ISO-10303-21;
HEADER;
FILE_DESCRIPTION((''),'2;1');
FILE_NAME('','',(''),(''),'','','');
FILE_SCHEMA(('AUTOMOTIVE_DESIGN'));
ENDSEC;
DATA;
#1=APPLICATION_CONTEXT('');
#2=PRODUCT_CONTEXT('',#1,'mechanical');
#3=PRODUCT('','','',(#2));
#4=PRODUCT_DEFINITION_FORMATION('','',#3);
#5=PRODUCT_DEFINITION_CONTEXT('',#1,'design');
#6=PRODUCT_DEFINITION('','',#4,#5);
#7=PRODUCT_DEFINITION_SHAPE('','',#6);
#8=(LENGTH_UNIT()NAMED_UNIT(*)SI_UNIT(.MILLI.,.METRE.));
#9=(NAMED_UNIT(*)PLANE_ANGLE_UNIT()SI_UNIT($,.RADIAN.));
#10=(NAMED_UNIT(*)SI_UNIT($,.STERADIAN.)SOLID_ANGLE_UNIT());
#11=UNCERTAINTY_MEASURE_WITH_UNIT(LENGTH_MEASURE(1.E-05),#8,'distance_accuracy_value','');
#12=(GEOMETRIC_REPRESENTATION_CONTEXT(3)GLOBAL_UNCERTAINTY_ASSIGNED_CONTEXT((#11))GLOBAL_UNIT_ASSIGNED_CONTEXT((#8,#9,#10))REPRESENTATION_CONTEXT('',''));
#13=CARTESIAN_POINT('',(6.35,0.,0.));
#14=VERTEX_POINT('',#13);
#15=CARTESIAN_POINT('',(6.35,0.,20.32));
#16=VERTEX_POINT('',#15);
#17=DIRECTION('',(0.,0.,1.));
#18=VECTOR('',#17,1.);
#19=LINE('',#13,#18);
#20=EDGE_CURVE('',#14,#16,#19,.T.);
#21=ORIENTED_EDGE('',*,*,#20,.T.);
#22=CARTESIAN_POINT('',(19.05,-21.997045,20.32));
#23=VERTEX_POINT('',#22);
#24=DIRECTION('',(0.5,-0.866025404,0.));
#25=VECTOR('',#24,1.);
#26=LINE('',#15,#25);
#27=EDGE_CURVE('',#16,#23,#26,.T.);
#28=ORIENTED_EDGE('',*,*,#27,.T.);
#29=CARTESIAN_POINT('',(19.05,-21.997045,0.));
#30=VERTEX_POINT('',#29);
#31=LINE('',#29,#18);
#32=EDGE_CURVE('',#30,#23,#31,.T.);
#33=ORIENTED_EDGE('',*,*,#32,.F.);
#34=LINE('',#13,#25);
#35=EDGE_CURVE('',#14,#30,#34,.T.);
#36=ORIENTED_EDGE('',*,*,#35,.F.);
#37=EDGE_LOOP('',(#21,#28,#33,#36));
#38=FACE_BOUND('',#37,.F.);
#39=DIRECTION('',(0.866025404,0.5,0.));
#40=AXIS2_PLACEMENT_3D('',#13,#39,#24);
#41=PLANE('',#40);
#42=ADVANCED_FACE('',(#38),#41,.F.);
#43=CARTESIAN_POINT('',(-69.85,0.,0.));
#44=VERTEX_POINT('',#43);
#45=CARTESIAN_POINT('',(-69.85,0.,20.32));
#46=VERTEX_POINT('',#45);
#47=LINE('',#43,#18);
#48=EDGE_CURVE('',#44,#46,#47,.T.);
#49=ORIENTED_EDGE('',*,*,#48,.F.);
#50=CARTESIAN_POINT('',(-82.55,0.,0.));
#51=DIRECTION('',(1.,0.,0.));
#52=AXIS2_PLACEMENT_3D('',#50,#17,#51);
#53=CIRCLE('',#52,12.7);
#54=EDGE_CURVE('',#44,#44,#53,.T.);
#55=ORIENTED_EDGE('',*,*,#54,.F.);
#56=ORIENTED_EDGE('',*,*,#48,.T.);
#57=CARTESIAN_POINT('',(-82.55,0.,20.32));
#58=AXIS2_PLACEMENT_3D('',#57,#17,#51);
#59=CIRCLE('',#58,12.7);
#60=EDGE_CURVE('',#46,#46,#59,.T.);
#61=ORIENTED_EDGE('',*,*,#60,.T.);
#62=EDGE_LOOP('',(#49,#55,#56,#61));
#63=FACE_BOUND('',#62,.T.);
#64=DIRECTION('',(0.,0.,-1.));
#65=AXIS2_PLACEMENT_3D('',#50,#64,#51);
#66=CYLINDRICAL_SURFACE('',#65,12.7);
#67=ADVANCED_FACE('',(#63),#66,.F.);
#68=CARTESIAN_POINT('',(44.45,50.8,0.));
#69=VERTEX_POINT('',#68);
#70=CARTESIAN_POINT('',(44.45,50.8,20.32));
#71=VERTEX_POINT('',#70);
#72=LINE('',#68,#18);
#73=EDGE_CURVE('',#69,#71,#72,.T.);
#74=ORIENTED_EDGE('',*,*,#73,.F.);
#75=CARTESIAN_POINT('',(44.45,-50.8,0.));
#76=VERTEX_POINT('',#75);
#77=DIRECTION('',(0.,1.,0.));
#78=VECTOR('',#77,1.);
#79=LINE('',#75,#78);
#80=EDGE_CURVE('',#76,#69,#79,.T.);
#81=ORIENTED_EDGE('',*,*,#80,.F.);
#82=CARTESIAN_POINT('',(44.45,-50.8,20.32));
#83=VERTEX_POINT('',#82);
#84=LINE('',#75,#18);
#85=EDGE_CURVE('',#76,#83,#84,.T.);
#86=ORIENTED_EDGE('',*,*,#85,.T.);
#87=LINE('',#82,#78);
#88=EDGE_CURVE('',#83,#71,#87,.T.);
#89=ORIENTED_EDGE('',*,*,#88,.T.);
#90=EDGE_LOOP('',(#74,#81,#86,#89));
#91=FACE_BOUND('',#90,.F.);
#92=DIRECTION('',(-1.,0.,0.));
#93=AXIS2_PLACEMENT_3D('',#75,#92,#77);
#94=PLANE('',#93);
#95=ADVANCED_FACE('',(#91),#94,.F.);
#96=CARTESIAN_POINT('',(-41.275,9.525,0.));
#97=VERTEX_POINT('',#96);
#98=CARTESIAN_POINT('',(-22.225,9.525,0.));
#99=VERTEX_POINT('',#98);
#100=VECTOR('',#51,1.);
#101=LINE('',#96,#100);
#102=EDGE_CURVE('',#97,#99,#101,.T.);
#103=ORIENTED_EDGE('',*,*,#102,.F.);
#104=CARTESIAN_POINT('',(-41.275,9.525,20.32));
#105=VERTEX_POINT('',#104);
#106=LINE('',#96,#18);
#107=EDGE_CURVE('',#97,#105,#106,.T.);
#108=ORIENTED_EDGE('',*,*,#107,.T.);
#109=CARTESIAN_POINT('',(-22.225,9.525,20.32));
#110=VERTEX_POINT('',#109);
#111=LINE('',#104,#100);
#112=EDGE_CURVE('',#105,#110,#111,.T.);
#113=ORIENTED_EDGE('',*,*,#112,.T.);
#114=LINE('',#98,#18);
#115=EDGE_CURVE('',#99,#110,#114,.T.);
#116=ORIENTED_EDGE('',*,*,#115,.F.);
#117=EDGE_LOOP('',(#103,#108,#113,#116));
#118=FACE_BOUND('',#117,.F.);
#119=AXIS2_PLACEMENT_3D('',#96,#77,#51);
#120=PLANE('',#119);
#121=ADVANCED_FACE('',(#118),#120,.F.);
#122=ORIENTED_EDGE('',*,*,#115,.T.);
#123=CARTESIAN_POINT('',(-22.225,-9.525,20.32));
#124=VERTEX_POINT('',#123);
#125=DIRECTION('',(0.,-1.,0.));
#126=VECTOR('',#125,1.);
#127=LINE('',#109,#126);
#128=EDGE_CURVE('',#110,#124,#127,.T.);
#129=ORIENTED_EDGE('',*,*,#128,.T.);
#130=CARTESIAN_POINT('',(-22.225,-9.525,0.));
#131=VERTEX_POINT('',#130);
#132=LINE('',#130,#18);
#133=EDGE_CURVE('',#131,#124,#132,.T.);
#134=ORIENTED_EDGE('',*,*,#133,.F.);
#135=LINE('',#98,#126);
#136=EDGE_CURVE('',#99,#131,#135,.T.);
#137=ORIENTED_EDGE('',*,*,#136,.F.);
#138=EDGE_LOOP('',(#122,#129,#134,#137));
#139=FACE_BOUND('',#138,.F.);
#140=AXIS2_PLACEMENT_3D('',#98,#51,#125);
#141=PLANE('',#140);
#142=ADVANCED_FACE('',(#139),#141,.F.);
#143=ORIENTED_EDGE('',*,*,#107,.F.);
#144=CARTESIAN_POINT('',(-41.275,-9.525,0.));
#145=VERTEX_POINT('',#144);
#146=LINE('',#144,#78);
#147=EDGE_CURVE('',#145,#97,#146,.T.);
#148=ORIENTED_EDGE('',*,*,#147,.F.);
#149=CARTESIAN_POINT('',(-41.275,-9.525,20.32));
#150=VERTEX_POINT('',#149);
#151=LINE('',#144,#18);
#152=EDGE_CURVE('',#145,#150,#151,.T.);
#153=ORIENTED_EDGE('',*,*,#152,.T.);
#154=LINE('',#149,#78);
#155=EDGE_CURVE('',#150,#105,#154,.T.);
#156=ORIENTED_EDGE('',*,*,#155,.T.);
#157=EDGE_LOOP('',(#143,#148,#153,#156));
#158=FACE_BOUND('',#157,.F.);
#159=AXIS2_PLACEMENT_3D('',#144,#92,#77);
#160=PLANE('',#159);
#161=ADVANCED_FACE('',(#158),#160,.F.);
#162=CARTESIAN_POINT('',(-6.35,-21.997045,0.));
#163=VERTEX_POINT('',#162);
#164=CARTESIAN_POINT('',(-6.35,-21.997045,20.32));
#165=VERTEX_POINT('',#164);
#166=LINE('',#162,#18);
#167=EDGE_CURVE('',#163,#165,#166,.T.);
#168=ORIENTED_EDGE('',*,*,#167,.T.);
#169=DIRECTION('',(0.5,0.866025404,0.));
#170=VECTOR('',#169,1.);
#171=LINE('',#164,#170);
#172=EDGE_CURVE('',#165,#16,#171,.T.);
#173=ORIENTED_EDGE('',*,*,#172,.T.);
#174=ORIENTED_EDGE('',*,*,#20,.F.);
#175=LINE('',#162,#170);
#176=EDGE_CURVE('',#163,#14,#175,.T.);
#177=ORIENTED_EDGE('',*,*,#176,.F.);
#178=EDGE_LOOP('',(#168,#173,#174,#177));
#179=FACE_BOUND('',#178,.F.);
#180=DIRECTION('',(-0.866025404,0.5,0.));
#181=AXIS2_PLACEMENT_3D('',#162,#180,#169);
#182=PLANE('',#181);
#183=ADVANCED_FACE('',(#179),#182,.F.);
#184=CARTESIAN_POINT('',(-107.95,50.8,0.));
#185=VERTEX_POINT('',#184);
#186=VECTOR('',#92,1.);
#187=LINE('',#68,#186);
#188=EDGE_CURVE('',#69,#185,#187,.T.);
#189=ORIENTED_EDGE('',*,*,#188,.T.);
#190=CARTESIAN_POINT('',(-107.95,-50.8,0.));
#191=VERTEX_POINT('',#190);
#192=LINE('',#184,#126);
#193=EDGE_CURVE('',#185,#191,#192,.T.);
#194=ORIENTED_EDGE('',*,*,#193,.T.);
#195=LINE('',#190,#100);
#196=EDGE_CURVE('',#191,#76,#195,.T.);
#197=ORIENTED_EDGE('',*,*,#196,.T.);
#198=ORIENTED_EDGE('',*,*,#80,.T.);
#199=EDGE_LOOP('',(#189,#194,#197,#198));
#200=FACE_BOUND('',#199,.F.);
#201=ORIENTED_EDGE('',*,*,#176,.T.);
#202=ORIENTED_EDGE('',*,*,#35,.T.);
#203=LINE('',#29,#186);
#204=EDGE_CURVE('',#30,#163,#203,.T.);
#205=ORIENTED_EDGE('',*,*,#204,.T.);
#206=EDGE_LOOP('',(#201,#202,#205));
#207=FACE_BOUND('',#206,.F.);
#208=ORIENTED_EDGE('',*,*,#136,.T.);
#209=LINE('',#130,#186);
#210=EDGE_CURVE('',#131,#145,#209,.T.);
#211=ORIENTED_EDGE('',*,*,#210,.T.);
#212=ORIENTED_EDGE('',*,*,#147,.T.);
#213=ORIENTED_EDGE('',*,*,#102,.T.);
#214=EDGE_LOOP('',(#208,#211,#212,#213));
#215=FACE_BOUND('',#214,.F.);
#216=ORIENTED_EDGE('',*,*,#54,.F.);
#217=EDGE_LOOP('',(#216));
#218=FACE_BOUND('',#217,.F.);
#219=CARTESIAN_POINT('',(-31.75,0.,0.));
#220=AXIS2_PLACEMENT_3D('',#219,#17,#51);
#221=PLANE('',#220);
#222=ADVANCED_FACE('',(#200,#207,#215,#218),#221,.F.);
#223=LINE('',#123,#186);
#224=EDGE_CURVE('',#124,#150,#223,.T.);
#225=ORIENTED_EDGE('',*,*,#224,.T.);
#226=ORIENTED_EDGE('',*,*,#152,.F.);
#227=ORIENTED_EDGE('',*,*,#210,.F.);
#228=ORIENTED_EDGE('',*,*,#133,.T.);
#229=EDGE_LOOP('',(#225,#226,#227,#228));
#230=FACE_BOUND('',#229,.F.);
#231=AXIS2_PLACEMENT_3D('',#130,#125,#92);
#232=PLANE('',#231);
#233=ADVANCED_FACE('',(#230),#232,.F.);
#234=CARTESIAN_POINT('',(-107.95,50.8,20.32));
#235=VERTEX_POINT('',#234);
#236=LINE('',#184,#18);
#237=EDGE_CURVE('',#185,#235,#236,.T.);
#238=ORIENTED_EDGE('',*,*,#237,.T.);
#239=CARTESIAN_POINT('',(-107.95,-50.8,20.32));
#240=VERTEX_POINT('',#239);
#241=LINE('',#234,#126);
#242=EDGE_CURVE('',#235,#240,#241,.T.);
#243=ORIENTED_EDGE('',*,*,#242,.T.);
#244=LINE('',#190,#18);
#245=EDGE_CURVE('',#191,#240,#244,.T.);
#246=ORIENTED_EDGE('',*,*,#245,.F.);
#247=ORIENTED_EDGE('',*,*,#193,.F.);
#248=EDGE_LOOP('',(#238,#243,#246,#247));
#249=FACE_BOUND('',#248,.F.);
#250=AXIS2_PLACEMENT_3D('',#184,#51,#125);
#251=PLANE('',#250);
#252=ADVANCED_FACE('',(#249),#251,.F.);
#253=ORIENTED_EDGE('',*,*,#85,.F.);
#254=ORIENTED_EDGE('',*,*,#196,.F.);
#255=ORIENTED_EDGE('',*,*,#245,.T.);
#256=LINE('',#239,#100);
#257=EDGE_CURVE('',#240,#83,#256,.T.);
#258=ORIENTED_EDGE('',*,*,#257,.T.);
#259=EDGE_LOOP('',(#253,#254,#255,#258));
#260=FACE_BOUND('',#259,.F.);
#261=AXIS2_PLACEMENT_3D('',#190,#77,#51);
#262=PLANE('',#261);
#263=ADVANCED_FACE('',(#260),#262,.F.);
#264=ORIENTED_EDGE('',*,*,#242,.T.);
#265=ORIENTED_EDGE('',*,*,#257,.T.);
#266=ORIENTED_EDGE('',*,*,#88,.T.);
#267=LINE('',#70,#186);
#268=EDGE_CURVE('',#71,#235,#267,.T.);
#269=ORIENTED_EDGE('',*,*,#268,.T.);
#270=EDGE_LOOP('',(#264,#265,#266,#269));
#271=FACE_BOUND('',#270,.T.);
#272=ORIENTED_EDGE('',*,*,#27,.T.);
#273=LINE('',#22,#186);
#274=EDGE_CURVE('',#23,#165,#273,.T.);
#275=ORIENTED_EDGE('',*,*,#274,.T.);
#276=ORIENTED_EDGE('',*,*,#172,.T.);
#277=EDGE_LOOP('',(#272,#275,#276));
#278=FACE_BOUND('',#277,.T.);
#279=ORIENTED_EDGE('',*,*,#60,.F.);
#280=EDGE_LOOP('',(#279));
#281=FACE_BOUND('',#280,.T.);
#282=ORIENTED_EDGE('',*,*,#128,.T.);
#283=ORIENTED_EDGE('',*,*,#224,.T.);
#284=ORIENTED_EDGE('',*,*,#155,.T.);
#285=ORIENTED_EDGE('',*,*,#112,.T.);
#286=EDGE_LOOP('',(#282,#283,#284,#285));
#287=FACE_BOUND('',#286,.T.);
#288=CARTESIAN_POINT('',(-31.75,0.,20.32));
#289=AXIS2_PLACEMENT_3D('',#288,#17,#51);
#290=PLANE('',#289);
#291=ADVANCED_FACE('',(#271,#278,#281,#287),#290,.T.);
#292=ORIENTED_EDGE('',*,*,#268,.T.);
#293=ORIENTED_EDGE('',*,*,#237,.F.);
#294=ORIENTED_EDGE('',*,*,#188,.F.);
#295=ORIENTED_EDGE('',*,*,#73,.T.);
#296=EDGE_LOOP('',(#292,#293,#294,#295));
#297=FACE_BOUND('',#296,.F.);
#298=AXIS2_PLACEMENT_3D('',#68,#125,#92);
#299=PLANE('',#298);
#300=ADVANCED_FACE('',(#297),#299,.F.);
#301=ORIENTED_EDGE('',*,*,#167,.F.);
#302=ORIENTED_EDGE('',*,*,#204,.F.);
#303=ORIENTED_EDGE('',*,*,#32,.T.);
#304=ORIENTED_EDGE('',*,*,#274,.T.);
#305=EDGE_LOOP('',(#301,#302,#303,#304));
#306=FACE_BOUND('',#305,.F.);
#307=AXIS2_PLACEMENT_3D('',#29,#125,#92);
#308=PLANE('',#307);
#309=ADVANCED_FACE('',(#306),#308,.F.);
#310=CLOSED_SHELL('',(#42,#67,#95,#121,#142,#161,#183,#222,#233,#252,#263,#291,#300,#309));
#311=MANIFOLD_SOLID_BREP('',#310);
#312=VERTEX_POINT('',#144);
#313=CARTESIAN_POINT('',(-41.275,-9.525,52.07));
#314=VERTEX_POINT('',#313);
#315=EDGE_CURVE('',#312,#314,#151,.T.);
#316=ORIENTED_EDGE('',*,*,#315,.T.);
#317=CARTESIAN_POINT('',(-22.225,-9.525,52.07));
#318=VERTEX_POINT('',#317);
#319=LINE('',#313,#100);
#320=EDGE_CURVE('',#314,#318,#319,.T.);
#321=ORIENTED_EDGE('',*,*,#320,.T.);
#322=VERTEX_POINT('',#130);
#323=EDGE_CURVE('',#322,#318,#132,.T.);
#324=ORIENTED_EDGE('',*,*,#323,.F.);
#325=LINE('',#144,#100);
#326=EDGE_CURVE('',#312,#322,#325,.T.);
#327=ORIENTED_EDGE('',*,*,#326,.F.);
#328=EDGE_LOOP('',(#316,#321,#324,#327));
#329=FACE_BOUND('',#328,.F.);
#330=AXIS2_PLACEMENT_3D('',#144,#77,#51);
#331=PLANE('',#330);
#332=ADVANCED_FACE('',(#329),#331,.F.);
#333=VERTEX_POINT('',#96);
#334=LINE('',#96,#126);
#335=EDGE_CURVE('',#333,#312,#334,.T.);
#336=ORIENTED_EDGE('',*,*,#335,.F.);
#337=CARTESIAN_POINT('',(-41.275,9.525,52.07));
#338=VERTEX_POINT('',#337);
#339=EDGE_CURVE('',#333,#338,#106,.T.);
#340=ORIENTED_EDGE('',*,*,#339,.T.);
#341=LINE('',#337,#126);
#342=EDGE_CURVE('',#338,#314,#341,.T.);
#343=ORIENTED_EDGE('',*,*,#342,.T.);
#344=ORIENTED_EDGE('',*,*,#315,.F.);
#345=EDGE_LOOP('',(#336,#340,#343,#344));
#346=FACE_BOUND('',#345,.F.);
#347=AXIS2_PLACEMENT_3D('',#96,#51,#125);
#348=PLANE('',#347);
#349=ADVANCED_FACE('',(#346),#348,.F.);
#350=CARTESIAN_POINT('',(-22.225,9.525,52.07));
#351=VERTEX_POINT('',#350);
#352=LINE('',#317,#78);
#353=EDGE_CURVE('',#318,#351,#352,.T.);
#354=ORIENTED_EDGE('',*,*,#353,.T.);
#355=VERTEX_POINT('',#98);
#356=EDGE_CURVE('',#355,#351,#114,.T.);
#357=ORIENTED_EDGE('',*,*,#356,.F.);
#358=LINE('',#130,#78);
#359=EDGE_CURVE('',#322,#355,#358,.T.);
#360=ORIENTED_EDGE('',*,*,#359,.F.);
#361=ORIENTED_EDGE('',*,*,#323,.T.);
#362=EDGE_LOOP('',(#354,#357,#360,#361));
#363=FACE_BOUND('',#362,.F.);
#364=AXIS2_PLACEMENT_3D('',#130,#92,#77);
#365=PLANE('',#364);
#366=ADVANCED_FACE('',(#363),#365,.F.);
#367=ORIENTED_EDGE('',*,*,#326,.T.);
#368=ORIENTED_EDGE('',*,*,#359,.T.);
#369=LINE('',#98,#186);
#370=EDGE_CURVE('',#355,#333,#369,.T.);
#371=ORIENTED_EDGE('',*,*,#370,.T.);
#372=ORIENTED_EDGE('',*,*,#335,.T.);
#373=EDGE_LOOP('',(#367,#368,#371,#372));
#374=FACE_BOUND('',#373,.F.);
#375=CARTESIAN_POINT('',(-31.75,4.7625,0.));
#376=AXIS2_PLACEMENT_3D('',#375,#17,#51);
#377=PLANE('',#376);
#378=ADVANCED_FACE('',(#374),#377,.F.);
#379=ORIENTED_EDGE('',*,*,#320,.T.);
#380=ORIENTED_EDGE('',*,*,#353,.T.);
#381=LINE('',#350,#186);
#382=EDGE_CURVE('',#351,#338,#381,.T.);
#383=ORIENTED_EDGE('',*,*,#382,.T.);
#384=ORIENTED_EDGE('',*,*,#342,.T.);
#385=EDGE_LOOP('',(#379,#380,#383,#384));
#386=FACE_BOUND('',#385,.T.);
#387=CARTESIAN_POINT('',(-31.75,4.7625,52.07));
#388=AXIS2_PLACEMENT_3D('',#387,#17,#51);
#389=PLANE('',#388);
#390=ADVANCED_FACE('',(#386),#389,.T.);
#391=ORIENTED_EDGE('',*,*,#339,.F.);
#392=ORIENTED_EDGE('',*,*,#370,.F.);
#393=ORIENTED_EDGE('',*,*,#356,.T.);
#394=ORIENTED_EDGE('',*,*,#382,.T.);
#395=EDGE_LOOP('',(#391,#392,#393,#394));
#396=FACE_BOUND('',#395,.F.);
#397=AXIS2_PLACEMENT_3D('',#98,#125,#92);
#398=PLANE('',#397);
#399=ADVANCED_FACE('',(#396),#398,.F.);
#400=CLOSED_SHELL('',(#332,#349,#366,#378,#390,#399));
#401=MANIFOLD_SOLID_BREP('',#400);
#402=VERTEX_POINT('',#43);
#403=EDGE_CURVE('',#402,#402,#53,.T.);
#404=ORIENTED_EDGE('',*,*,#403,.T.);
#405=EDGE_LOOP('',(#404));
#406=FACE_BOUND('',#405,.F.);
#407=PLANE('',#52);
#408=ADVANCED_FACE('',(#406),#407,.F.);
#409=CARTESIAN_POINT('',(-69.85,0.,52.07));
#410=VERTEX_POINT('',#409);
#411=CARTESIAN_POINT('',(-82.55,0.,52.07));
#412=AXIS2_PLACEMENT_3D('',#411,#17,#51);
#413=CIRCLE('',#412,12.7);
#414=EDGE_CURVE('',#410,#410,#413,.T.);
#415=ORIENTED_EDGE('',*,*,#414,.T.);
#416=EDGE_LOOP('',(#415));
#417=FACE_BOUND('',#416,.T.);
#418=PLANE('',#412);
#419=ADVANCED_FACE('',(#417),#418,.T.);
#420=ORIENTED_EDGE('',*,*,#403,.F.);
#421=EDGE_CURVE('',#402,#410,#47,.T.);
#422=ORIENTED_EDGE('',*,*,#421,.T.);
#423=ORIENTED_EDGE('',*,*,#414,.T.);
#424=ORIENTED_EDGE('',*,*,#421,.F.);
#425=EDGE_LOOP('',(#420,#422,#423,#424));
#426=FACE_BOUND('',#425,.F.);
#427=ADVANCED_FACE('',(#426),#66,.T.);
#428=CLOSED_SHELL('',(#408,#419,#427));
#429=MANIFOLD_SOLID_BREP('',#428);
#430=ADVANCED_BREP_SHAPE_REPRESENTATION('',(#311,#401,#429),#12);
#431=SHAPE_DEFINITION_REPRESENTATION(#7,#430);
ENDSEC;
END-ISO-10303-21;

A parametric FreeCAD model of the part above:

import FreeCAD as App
import Part
import Sketcher
Q = App.Units.Quantity


def add_polygon(sketch, points):
    """Adds a closed chain of lines whose ends are joined by coincident constraints."""
    first, n = sketch.GeometryCount, len(points)
    for a, b in zip(points, points[1:] + points[:1]):
        sketch.addGeometry(Part.LineSegment(App.Vector(*a, 0), App.Vector(*b, 0)), False)
    for i in range(n):
        sketch.addConstraint(Sketcher.Constraint("Coincident", first + i, 2, first + (i + 1) % n, 1))

doc = App.newDocument("Part")
params = doc.addObject("Spreadsheet::Sheet", "Params")
for row, (alias, value) in enumerate([
    ("sketch1_diameter", "1 in"),
    ("sketch1_width", "6 in"),
    ("sketch1_width2", "1 in"),
    ("sketch1_height", "4 in"),
    ("sketch1_length", "1 in"),
    ("pad1_length", "0.8 in"),
    ("sketch2_width", "0.75 in"),
    ("pad2_length", "2.05 in"),
    ("sketch3_diameter", "1 in"),
    ("pad3_length", "2.05 in"),
], start=1):
    params.set(f"A{row}", alias)
    params.set(f"B{row}", "=" + value)
    params.setAlias(f"B{row}", alias)

body = doc.addObject("PartDesign::Body", "Body")

sketch1 = doc.addObject("Sketcher::SketchObject", "Sketch")
body.addObject(sketch1)
sketch1.AttachmentSupport = (doc.XY_Plane, [""])
sketch1.MapMode = "FlatFace"
add_polygon(sketch1, [(44, -51), (44, 51), (-108, 51), (-108, -51)])
add_polygon(sketch1, [(19, -22), (-6, -22), (6, 0)])
sketch1.addGeometry(Part.Circle(App.Vector(-83, 0, 0), App.Vector(0, 0, 1), 13), False)
add_polygon(sketch1, [(-41, 10), (-22, 10), (-22, -10), (-41, -10)])
sketch1.addConstraint(Sketcher.Constraint("Vertical", 0))
sketch1.addConstraint(Sketcher.Constraint("Horizontal", 1))
sketch1.addConstraint(Sketcher.Constraint("Vertical", 2))
sketch1.addConstraint(Sketcher.Constraint("Horizontal", 3))
sketch1.addConstraint(Sketcher.Constraint("Horizontal", 4))
sketch1.addConstraint(Sketcher.Constraint("Horizontal", 8))
sketch1.addConstraint(Sketcher.Constraint("Vertical", 9))
sketch1.addConstraint(Sketcher.Constraint("Horizontal", 10))
sketch1.addConstraint(Sketcher.Constraint("Vertical", 11))
sketch1.addConstraint(Sketcher.Constraint("PointOnObject", 7, 3, -1))
sketch1.addConstraint(Sketcher.Constraint("PointOnObject", 5, 2, -1))
sketch1.addConstraint(Sketcher.Constraint("Equal", 10, 9))
sketch1.addConstraint(Sketcher.Constraint("Equal", 5, 6))
sketch1.addConstraint(Sketcher.Constraint("Diameter", 7, Q("1 in")))
sketch1.addConstraint(Sketcher.Constraint("DistanceX", 1, 2, 1, 1, Q("6 in")))
sketch1.addConstraint(Sketcher.Constraint("DistanceX", 4, 2, 4, 1, Q("1 in")))
sketch1.addConstraint(Sketcher.Constraint("DistanceY", 0, 1, 0, 2, Q("4 in")))
sketch1.addConstraint(Sketcher.Constraint("Distance", 5, Q("1 in")))
sketch1.addConstraint(Sketcher.Constraint("DistanceY", -1, 1, 0, 2, Q("2 in")))
sketch1.addConstraint(Sketcher.Constraint("DistanceX", 7, 3, 0, 2, Q("5 in")))
sketch1.addConstraint(Sketcher.Constraint("DistanceX", 4, 2, 3, 2, Q("2 in")))
sketch1.addConstraint(Sketcher.Constraint("DistanceX", 8, 1, 8, 2, Q("0.75 in")))
sketch1.addConstraint(Sketcher.Constraint("DistanceX", 7, 3, -1, 1, Q("3.25 in")))
sketch1.addConstraint(Sketcher.Constraint("DistanceX", 8, 2, -1, 1, Q("0.875 in")))
sketch1.addConstraint(Sketcher.Constraint("DistanceY", -1, 1, 8, 2, Q("0.375 in")))
sketch1.setExpression("Constraints[24]", "Params.sketch1_diameter")
sketch1.setExpression("Constraints[25]", "Params.sketch1_width")
sketch1.setExpression("Constraints[26]", "Params.sketch1_width2")
sketch1.setExpression("Constraints[27]", "Params.sketch1_height")
sketch1.setExpression("Constraints[28]", "Params.sketch1_length")
pad1 = doc.addObject("PartDesign::Pad", "Pad")
body.addObject(pad1)
pad1.Profile = sketch1
pad1.setExpression("Length", "Params.pad1_length")
body2 = doc.addObject("PartDesign::Body", "Body001")

sketch2 = doc.addObject("Sketcher::SketchObject", "Sketch001")
body2.addObject(sketch2)
sketch2.AttachmentSupport = (doc.getObject("XY_Plane001"), [""])
sketch2.MapMode = "FlatFace"
add_polygon(sketch2, [(-22, 10), (-41, 10), (-41, -10), (-22, -10)])
sketch2.addConstraint(Sketcher.Constraint("Horizontal", 0))
sketch2.addConstraint(Sketcher.Constraint("Vertical", 1))
sketch2.addConstraint(Sketcher.Constraint("Horizontal", 2))
sketch2.addConstraint(Sketcher.Constraint("Vertical", 3))
sketch2.addConstraint(Sketcher.Constraint("Equal", 2, 1))
sketch2.addConstraint(Sketcher.Constraint("DistanceX", 0, 2, 0, 1, Q("0.75 in")))
sketch2.addConstraint(Sketcher.Constraint("DistanceX", 0, 2, -1, 1, Q("1.625 in")))
sketch2.addConstraint(Sketcher.Constraint("DistanceY", -1, 1, 0, 2, Q("0.375 in")))
sketch2.setExpression("Constraints[9]", "Params.sketch2_width")
pad2 = doc.addObject("PartDesign::Pad", "Pad001")
body2.addObject(pad2)
pad2.Profile = sketch2
pad2.setExpression("Length", "Params.pad2_length")
body3 = doc.addObject("PartDesign::Body", "Body002")

sketch3 = doc.addObject("Sketcher::SketchObject", "Sketch002")
body3.addObject(sketch3)
sketch3.AttachmentSupport = (doc.getObject("XY_Plane002"), [""])
sketch3.MapMode = "FlatFace"
sketch3.addGeometry(Part.Circle(App.Vector(-83, 0, 0), App.Vector(0, 0, 1), 13), False)
sketch3.addConstraint(Sketcher.Constraint("PointOnObject", 0, 3, -1))
sketch3.addConstraint(Sketcher.Constraint("Diameter", 0, Q("1 in")))
sketch3.addConstraint(Sketcher.Constraint("DistanceX", 0, 3, -1, 1, Q("3.25 in")))
sketch3.setExpression("Constraints[1]", "Params.sketch3_diameter")
pad3 = doc.addObject("PartDesign::Pad", "Pad002")
body3.addObject(pad3)
pad3.Profile = sketch3
pad3.setExpression("Length", "Params.pad3_length")

doc.recompute()
